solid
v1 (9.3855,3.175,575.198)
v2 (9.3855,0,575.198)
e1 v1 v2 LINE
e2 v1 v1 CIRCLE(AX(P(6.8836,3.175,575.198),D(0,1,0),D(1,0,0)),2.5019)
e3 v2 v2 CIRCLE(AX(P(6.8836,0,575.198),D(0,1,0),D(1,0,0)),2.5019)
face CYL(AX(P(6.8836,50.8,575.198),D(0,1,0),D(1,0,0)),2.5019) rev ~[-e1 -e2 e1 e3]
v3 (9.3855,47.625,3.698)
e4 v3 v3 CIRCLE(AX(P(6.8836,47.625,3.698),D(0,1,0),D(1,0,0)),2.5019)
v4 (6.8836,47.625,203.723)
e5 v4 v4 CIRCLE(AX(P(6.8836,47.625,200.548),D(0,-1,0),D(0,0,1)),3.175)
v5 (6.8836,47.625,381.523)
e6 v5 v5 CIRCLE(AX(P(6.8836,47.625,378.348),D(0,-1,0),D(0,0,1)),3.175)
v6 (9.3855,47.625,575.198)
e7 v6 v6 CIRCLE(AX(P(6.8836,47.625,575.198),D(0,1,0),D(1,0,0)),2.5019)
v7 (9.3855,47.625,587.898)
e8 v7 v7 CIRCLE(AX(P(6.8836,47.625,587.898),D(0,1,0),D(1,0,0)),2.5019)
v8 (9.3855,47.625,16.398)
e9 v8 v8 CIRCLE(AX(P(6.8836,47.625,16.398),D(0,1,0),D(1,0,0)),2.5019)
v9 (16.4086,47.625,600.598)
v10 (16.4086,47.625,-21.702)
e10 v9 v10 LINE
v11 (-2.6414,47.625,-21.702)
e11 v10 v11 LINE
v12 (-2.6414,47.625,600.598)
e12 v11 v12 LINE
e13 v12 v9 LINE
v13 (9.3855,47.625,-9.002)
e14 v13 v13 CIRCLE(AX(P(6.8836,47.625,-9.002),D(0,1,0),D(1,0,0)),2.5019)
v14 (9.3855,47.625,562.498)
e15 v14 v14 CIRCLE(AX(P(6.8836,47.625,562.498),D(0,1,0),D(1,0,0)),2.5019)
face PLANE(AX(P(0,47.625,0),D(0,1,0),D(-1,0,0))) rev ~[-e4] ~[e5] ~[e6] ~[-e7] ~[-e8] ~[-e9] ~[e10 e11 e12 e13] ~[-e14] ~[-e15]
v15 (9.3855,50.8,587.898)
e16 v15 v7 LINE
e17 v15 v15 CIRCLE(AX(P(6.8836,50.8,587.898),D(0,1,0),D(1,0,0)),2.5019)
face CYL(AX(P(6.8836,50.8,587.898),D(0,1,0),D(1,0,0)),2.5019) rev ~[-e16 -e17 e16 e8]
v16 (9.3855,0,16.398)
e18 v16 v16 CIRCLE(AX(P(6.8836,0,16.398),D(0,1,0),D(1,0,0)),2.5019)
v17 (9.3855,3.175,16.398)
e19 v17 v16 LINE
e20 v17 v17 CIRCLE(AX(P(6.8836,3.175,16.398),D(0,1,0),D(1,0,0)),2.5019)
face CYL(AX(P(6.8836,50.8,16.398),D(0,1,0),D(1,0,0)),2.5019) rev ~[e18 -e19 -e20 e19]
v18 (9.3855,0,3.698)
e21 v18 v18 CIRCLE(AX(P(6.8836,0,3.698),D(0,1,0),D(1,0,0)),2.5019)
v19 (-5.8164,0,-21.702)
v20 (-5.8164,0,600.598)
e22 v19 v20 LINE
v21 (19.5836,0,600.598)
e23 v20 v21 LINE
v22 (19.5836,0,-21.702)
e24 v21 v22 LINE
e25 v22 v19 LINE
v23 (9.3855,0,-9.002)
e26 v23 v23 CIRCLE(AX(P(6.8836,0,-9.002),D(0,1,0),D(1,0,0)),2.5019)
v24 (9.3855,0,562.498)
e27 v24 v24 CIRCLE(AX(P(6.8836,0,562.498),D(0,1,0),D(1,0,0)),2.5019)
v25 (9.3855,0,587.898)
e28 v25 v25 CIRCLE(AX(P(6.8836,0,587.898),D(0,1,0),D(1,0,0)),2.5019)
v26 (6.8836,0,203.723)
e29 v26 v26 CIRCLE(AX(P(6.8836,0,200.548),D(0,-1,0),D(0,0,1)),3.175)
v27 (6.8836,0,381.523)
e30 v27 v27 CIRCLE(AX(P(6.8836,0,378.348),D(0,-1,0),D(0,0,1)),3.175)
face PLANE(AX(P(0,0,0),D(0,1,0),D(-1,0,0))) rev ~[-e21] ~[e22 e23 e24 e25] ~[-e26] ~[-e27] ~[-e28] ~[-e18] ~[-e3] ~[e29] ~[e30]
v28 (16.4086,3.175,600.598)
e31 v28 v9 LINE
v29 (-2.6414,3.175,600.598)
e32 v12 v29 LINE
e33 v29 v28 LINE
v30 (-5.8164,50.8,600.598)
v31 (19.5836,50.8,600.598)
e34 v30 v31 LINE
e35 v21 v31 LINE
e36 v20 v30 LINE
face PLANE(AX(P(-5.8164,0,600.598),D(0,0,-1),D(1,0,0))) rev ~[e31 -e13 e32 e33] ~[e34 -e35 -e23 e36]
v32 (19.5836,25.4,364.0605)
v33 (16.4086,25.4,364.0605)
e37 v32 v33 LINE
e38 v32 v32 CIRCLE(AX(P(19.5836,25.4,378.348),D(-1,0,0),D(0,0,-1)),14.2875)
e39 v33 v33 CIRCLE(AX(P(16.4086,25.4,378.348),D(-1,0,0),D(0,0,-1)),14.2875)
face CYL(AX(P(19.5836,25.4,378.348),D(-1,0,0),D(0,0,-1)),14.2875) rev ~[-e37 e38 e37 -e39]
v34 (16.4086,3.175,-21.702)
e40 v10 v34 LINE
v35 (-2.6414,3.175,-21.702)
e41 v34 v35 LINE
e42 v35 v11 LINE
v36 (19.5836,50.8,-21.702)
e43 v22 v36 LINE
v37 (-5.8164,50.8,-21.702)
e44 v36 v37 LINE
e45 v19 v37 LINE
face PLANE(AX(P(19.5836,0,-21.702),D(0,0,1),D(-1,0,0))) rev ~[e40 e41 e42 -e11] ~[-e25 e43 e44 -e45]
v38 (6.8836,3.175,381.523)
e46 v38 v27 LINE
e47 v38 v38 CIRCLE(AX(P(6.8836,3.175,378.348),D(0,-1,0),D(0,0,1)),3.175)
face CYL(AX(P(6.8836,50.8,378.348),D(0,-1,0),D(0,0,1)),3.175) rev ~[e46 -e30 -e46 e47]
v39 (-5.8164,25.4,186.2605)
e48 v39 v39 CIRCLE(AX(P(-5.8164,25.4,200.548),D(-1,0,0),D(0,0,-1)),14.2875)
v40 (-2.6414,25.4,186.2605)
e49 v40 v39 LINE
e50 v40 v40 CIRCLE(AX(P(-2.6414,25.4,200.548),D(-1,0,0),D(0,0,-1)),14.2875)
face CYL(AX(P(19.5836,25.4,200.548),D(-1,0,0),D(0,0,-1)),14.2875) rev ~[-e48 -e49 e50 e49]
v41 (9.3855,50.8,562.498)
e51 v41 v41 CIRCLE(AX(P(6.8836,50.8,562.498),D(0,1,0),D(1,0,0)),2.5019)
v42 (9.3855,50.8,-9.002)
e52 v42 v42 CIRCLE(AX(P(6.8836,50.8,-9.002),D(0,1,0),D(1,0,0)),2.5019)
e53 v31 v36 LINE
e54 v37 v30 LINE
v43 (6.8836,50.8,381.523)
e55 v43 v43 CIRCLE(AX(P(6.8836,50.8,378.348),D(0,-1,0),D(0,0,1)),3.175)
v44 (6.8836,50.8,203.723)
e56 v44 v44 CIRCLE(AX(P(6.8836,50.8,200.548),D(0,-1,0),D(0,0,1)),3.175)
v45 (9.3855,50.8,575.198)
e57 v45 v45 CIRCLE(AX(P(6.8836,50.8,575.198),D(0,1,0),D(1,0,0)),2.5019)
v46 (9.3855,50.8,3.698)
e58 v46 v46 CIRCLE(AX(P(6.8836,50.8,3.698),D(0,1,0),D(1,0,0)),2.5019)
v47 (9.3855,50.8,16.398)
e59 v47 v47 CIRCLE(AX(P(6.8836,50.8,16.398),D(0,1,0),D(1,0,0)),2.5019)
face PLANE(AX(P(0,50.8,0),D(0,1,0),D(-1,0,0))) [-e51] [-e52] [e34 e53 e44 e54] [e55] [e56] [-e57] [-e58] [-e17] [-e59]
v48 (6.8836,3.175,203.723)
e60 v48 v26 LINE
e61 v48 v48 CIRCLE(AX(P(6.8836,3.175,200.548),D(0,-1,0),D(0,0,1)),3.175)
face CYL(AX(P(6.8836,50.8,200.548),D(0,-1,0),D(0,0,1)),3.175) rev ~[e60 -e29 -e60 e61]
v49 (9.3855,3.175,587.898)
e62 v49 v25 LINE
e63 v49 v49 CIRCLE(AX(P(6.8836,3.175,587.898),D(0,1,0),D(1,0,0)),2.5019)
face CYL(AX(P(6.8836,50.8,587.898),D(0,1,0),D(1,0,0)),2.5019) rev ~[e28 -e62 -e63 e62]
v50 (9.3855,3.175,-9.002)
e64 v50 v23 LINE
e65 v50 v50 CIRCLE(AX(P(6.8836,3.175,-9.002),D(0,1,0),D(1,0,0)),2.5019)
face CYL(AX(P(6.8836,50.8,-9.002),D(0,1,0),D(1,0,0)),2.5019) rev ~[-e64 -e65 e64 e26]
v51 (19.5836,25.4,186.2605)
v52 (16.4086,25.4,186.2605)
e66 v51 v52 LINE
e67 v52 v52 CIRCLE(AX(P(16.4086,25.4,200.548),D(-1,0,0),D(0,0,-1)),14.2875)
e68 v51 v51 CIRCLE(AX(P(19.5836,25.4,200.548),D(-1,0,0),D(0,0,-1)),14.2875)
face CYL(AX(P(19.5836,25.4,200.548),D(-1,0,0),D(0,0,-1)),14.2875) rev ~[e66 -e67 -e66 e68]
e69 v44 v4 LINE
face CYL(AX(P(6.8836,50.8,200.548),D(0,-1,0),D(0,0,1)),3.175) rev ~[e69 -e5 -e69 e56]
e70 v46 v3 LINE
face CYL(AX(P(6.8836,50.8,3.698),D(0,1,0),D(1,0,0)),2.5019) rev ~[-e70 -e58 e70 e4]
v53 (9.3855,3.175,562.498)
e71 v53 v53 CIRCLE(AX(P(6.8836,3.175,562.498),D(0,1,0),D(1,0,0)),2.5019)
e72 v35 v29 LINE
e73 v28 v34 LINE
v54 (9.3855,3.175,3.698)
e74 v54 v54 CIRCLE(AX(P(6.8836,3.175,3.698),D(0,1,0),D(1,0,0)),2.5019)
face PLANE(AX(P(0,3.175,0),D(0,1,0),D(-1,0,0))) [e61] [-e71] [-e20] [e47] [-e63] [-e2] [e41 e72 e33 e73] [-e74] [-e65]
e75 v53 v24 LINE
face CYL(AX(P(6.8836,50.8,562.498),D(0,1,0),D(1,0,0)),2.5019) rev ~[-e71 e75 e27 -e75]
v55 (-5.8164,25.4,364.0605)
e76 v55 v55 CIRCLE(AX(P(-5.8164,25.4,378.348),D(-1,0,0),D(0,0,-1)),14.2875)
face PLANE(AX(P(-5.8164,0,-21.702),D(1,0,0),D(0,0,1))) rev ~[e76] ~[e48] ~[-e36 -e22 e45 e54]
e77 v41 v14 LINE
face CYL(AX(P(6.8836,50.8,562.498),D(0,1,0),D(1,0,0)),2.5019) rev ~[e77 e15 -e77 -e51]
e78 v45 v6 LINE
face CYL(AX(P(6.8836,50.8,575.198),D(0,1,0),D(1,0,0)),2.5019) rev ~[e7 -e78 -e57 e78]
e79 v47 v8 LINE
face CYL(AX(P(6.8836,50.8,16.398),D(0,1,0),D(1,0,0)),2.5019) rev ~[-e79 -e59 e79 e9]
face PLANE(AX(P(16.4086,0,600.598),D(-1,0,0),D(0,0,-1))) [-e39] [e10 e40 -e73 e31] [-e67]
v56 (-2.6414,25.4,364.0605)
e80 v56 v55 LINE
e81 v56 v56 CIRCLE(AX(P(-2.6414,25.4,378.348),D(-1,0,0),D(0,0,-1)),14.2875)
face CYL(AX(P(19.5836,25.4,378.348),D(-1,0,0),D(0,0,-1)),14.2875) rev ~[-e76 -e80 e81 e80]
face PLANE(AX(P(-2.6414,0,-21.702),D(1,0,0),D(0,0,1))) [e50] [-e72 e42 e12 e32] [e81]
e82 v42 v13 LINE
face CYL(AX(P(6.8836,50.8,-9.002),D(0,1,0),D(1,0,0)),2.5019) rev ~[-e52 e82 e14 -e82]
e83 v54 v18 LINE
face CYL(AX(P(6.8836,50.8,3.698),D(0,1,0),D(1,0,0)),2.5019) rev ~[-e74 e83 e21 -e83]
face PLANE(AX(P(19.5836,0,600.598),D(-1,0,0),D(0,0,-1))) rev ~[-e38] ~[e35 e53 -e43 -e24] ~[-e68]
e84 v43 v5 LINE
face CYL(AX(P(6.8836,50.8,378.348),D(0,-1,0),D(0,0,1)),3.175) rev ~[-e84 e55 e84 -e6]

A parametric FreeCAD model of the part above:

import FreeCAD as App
import Part
import Sketcher

V = App.Vector
Q = App.Units.Quantity


def faces_at(feature, points):
    """Names of the faces that lie closest to the given points."""
    faces = feature.Shape.Faces
    near = lambda p: min(range(len(faces)), key=lambda i: faces[i].distToShape(Part.Vertex(*p))[0])
    return sorted({f"Face{near(p) + 1}" for p in points})

doc = App.newDocument("Part")
body = doc.addObject("PartDesign::Body", "Body")

sketch1 = body.newObject("Sketcher::SketchObject", "Sketch")
sketch1.AttachmentSupport = (doc.getObject("XZ_Plane"), [""])
sketch1.MapMode = "FlatFace"
sketch1.addGeometry(Part.LineSegment(V(-6, -22, 0), V(-6, 601, 0)), False)
sketch1.addGeometry(Part.LineSegment(V(-6, 601, 0), V(20, 601, 0)), False)
sketch1.addGeometry(Part.LineSegment(V(20, 601, 0), V(20, -22, 0)), False)
sketch1.addGeometry(Part.LineSegment(V(20, -22, 0), V(-6, -22, 0)), False)
sketch1.addConstraint(Sketcher.Constraint("Coincident", 0, 2, 1, 1))
sketch1.addConstraint(Sketcher.Constraint("Coincident", 1, 2, 2, 1))
sketch1.addConstraint(Sketcher.Constraint("Coincident", 2, 2, 3, 1))
sketch1.addConstraint(Sketcher.Constraint("Coincident", 3, 2, 0, 1))
sketch1.addConstraint(Sketcher.Constraint("Vertical", 0))
sketch1.addConstraint(Sketcher.Constraint("Horizontal", 1))
sketch1.addConstraint(Sketcher.Constraint("Vertical", 2))
sketch1.addConstraint(Sketcher.Constraint("Horizontal", 3))
sketch1.addConstraint(Sketcher.Constraint("DistanceX", 1, 1, 1, 2, Q("1 in")))
sketch1.addConstraint(Sketcher.Constraint("DistanceY", 0, 1, 0, 2, Q("24.5 in")))
sketch1.addConstraint(Sketcher.Constraint("DistanceX", 0, 2, -1, 1, Q("0.229 in")))
sketch1.addConstraint(Sketcher.Constraint("DistanceY", -1, 1, 0, 2, Q("23.6456 in")))
pad1 = body.newObject("PartDesign::Pad", "Pad")
pad1.Profile = sketch1
pad1.Length = Q("2 in")
pad1.Reversed = True
doc.recompute()

thickness = body.newObject("PartDesign::Thickness", "Thickness")
thickness.Base = (pad1, faces_at(pad1, [(2.65, 33.867, 600.598), (11.117, 33.867, -21.702)]))
thickness.Value = Q("0.125 in")
thickness.Reversed = True
thickness.Join = "Intersection"

sketch2 = body.newObject("Sketcher::SketchObject", "Sketch001")
sketch2.AttachmentSupport = (doc.getObject("XZ_Plane"), [""])
sketch2.MapMode = "FlatFace"
sketch2.AttachmentOffset = App.Placement(V(0, 0, -2 * 25.4), App.Rotation())
sketch2.addGeometry(Part.Circle(V(6.9, 587.9, 0), V(0, 0, 1), 2.5), False)
sketch2.addGeometry(Part.Circle(V(6.9, 575.2, 0), V(0, 0, 1), 2.5), False)
sketch2.addGeometry(Part.Circle(V(6.9, 562.5, 0), V(0, 0, 1), 2.5), False)
sketch2.addGeometry(Part.Circle(V(6.9, -9, 0), V(0, 0, 1), 2.5), False)
sketch2.addGeometry(Part.Circle(V(6.9, 3.7, 0), V(0, 0, 1), 2.5), False)
sketch2.addGeometry(Part.Circle(V(6.9, 16.4, 0), V(0, 0, 1), 2.5), False)
sketch2.addConstraint(Sketcher.Constraint("Equal", 0, 1))
sketch2.addConstraint(Sketcher.Constraint("Equal", 1, 2))
sketch2.addConstraint(Sketcher.Constraint("Equal", 2, 3))
sketch2.addConstraint(Sketcher.Constraint("Equal", 3, 4))
sketch2.addConstraint(Sketcher.Constraint("Equal", 4, 5))
sketch2.addConstraint(Sketcher.Constraint("Vertical", 0, 3, 1, 3))
sketch2.addConstraint(Sketcher.Constraint("Vertical", 1, 3, 2, 3))
sketch2.addConstraint(Sketcher.Constraint("Vertical", 2, 3, 3, 3))
sketch2.addConstraint(Sketcher.Constraint("Vertical", 3, 3, 4, 3))
sketch2.addConstraint(Sketcher.Constraint("Vertical", 4, 3, 5, 3))
sketch2.addConstraint(Sketcher.Constraint("Diameter", 0, Q("0.197 in")))
sketch2.addConstraint(Sketcher.Constraint("DistanceY", 1, 3, 0, 3, Q("0.5 in")))
sketch2.addConstraint(Sketcher.Constraint("DistanceY", 2, 3, 1, 3, Q("0.5 in")))
sketch2.addConstraint(Sketcher.Constraint("DistanceY", 3, 3, 4, 3, Q("0.5 in")))
sketch2.addConstraint(Sketcher.Constraint("DistanceY", 4, 3, 5, 3, Q("0.5 in")))
sketch2.addConstraint(Sketcher.Constraint("DistanceY", 3, 3, 1, 3, Q("23 in")))
sketch2.addConstraint(Sketcher.Constraint("DistanceX", -1, 1, 0, 3, Q("0.271 in")))
sketch2.addConstraint(Sketcher.Constraint("DistanceY", -1, 1, 0, 3, Q("23.1456 in")))
pocket1 = body.newObject("PartDesign::Pocket", "Pocket")
pocket1.Profile = sketch2
pocket1.Length = Q("2 in")
pocket1.Reversed = True

sketch3 = body.newObject("Sketcher::SketchObject", "Sketch002")
sketch3.AttachmentSupport = (doc.getObject("YZ_Plane"), [""])
sketch3.MapMode = "FlatFace"
sketch3.AttachmentOffset = App.Placement(V(0, 0, 0.7710079 * 25.4), App.Rotation())
sketch3.addGeometry(Part.Circle(V(25, 378, 0), V(0, 0, 1), 14), False)
sketch3.addGeometry(Part.Circle(V(25, 201, 0), V(0, 0, 1), 14), False)
sketch3.addConstraint(Sketcher.Constraint("Equal", 0, 1))
sketch3.addConstraint(Sketcher.Constraint("Vertical", 0, 3, 1, 3))
sketch3.addConstraint(Sketcher.Constraint("Diameter", 0, Q("1.125 in")))
sketch3.addConstraint(Sketcher.Constraint("DistanceX", -1, 1, 0, 3, Q("1 in")))
sketch3.addConstraint(Sketcher.Constraint("DistanceY", 1, 3, 0, 3, Q("7 in")))
sketch3.addConstraint(Sketcher.Constraint("DistanceY", -1, 1, 0, 3, Q("14.8956 in")))
doc.recompute()
hole = body.newObject("PartDesign::Hole", "Hole")
hole.Profile = sketch3
hole.ThreadType = "None"
hole.Diameter = Q("1.125 in")
hole.DepthType = "ThroughAll"

sketch4 = body.newObject("Sketcher::SketchObject", "Sketch003")
sketch4.AttachmentSupport = (doc.getObject("XZ_Plane"), [""])
sketch4.MapMode = "FlatFace"
sketch4.AttachmentOffset = App.Placement(V(0, 0, -2 * 25.4), App.Rotation())
sketch4.addGeometry(Part.Circle(V(6.9, 378.3, 0), V(0, 0, 1), 3.2), False)
sketch4.addGeometry(Part.Circle(V(6.9, 200.5, 0), V(0, 0, 1), 3.2), False)
sketch4.addConstraint(Sketcher.Constraint("Equal", 0, 1))
sketch4.addConstraint(Sketcher.Constraint("Vertical", 0, 3, 1, 3))
sketch4.addConstraint(Sketcher.Constraint("Diameter", 0, Q("0.25 in")))
sketch4.addConstraint(Sketcher.Constraint("DistanceY", 1, 3, 0, 3, Q("7 in")))
sketch4.addConstraint(Sketcher.Constraint("DistanceX", -1, 1, 0, 3, Q("0.271 in")))
sketch4.addConstraint(Sketcher.Constraint("DistanceY", -1, 1, 0, 3, Q("14.8956 in")))
doc.recompute()
hole2 = body.newObject("PartDesign::Hole", "Hole001")
hole2.Profile = sketch4
hole2.ThreadType = "None"
hole2.Diameter = Q("0.25 in")
hole2.DepthType = "ThroughAll"
hole2.Reversed = True

doc.recompute()
